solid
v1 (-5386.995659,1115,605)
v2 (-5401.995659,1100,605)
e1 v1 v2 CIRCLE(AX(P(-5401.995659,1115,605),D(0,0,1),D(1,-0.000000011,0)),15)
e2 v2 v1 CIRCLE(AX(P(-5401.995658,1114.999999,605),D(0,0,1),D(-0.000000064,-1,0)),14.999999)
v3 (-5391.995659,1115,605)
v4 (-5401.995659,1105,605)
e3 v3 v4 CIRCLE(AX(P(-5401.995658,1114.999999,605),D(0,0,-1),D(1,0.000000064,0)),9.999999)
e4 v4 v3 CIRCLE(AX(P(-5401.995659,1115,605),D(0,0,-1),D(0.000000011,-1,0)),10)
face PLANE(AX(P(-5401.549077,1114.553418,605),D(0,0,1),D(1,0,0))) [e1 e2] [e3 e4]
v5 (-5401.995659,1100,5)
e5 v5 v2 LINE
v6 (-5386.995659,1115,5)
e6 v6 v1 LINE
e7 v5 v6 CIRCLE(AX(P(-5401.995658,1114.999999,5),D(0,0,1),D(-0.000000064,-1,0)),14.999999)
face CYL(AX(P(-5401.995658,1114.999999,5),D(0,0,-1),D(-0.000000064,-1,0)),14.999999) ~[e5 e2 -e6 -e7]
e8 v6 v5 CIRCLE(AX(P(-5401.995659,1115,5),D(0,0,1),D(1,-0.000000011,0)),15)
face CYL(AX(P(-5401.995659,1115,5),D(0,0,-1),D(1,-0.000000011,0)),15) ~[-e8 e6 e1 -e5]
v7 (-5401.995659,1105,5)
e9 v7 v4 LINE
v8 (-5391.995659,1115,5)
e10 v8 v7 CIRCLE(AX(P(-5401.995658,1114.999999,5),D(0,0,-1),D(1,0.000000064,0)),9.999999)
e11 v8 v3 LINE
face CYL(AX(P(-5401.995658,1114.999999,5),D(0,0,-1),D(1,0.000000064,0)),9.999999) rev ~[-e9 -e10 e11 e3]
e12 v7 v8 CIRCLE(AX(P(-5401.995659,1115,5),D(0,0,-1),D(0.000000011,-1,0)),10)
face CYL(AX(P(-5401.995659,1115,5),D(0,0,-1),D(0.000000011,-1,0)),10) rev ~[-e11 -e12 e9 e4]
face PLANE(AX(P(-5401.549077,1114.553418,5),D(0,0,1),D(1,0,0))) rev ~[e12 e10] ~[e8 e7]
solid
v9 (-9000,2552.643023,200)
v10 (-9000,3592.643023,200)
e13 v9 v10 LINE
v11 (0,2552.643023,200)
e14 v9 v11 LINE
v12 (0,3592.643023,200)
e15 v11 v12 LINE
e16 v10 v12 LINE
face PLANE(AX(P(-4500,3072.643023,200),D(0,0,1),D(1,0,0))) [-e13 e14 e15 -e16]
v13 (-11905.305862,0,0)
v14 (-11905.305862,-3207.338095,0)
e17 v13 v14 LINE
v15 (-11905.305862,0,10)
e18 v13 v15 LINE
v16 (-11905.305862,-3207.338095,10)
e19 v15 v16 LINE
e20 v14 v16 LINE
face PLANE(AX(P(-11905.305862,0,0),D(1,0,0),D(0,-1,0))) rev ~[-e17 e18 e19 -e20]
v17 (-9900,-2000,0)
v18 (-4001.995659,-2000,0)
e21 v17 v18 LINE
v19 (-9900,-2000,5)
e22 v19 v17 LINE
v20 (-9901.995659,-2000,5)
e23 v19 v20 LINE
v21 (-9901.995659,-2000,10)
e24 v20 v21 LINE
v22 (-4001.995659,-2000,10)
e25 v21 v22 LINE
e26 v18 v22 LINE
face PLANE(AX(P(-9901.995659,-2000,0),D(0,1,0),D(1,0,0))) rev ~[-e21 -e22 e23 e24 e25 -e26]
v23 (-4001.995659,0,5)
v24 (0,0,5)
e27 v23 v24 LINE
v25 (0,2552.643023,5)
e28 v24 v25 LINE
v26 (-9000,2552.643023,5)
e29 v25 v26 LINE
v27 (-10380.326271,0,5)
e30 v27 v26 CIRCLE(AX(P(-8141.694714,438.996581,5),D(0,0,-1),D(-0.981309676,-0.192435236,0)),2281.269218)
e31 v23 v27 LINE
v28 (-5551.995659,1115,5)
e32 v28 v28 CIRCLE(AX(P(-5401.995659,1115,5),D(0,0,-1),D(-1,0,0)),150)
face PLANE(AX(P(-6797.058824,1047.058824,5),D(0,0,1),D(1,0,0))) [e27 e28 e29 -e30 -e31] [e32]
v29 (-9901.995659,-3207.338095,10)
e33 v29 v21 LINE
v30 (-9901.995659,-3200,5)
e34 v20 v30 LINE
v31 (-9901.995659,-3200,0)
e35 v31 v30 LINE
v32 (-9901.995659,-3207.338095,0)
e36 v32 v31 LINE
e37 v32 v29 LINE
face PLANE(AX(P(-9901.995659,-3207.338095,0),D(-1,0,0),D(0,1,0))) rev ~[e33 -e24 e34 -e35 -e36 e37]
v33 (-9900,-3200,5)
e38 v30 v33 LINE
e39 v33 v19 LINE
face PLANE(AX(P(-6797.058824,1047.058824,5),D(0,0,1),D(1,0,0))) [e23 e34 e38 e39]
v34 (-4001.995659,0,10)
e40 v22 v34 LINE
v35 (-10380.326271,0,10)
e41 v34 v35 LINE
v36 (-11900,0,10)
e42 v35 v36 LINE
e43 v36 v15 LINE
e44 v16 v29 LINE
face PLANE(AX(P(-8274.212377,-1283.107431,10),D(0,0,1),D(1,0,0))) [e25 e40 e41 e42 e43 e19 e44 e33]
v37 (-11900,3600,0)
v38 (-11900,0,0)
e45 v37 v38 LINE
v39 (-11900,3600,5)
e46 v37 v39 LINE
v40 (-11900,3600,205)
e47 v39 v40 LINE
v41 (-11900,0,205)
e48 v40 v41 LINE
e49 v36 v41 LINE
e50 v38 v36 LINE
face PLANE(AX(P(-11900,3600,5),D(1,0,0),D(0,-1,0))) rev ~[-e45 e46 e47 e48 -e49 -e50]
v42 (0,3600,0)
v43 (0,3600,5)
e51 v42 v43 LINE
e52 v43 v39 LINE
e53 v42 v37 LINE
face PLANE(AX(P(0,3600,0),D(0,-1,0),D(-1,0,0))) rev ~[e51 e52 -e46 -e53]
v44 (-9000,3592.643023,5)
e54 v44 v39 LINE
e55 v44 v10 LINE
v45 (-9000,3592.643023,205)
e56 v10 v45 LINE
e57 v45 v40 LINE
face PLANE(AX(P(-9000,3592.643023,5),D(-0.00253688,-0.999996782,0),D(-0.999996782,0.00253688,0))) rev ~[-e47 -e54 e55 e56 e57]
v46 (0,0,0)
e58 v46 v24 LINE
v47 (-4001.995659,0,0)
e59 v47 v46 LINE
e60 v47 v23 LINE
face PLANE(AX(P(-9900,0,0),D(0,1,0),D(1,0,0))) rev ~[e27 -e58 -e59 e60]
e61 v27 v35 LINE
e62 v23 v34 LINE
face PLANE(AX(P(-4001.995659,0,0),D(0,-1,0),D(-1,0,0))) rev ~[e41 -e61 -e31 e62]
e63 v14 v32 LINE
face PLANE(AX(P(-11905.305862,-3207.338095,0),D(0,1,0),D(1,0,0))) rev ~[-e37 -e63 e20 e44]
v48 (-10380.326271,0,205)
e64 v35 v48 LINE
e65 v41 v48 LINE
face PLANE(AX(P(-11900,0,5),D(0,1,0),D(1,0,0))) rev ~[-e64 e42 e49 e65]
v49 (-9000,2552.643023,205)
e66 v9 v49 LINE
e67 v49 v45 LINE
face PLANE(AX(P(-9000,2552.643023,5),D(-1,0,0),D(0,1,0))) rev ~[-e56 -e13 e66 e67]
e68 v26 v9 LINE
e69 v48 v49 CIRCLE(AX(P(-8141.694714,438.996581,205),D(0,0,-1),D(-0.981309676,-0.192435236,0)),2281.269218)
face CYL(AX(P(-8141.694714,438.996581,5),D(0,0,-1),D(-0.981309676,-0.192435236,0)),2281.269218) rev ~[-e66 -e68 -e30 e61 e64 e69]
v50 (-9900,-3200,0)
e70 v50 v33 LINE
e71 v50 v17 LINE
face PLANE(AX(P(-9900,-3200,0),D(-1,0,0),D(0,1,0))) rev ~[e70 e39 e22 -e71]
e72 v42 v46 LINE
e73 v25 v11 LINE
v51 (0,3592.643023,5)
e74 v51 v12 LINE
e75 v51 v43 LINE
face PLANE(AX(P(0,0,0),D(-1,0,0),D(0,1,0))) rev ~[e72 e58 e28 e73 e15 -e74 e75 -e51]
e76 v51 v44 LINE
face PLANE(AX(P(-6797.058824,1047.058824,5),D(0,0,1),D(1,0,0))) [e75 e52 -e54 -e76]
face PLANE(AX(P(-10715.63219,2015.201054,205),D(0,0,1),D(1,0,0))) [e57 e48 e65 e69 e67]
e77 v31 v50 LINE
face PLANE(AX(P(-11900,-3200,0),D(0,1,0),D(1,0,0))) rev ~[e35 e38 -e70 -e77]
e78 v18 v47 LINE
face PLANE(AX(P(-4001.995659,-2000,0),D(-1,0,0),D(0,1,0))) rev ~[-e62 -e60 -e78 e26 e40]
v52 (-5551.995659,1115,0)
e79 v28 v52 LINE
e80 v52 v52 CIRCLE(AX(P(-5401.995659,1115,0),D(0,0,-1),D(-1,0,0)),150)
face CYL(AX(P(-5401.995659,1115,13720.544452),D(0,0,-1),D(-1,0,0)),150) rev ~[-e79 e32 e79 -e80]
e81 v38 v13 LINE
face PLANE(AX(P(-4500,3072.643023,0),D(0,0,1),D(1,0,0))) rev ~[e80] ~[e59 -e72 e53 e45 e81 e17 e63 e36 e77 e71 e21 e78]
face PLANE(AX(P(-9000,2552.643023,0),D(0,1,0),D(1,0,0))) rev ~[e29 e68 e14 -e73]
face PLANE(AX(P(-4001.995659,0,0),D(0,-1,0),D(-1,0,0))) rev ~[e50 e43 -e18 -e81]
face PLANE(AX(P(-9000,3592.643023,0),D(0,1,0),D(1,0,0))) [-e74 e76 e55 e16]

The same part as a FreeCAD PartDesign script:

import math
import FreeCAD as App
import Part
import Sketcher
from FreeCAD import Vector

doc = App.newDocument("Part")
body = doc.addObject("PartDesign::Body", "Body")

sketch1 = body.newObject("Sketcher::SketchObject", "Sketch")
sketch1.AttachmentSupport = (doc.getObject("XY_Plane"), [""])
sketch1.MapMode = "FlatFace"
sketch1.addGeometry(Part.LineSegment(Vector(0, 0, 0), Vector(0, 3600, 0)), False)
sketch1.addGeometry(Part.LineSegment(Vector(0, 3600, 0), Vector(-11900, 3600, 0)), False)
sketch1.addGeometry(Part.LineSegment(Vector(-11900, 3600, 0), Vector(-11900, -3200, 0)), False)
sketch1.addGeometry(Part.LineSegment(Vector(-11900, -3200, 0), Vector(-9900, -3200, 0)), False)
sketch1.addGeometry(Part.LineSegment(Vector(-9900, -3200, 0), Vector(-9900, 0, 0)), False)
sketch1.addGeometry(Part.LineSegment(Vector(-9900, 0, 0), Vector(0, 0, 0)), False)
sketch1.addConstraint(Sketcher.Constraint("Coincident", 0, 2, 1, 1))
sketch1.addConstraint(Sketcher.Constraint("Coincident", 1, 2, 2, 1))
sketch1.addConstraint(Sketcher.Constraint("Coincident", 2, 2, 3, 1))
sketch1.addConstraint(Sketcher.Constraint("Coincident", 3, 2, 4, 1))
sketch1.addConstraint(Sketcher.Constraint("Coincident", 4, 2, 5, 1))
sketch1.addConstraint(Sketcher.Constraint("Coincident", 5, 2, 0, 1))
sketch1.addConstraint(Sketcher.Constraint("Vertical", 0))
sketch1.addConstraint(Sketcher.Constraint("Horizontal", 1))
sketch1.addConstraint(Sketcher.Constraint("Vertical", 2))
sketch1.addConstraint(Sketcher.Constraint("Horizontal", 3))
sketch1.addConstraint(Sketcher.Constraint("Vertical", 4))
sketch1.addConstraint(Sketcher.Constraint("Horizontal", 5))
sketch1.addConstraint(Sketcher.Constraint("Coincident", 5, 2, -1, 1))
sketch1.addConstraint(Sketcher.Constraint("DistanceX", 1, 2, 1, 1, 11900.0))
sketch1.addConstraint(Sketcher.Constraint("DistanceX", 3, 1, 3, 2, 2000.0))
sketch1.addConstraint(Sketcher.Constraint("DistanceY", 0, 1, 0, 2, 3600.0))
sketch1.addConstraint(Sketcher.Constraint("DistanceY", 2, 2, 2, 1, 6800.0))
pad1 = body.newObject("PartDesign::Pad", "Pad")
pad1.Profile = sketch1
pad1.Length = 5

sketch2 = body.newObject("Sketcher::SketchObject", "Sketch001")
sketch2.AttachmentSupport = (doc.getObject("XY_Plane"), [""])
sketch2.MapMode = "FlatFace"
sketch2.addGeometry(Part.LineSegment(Vector(-4001.995659, 0, 0), Vector(-11905.305862, 0, 0)), False)
sketch2.addGeometry(Part.LineSegment(Vector(-11905.305862, 0, 0), Vector(-11905.305862, -3207.338095, 0)), False)
sketch2.addGeometry(Part.LineSegment(Vector(-11905.305862, -3207.338095, 0), Vector(-9901.995659, -3207.338095, 0)), False)
sketch2.addGeometry(Part.LineSegment(Vector(-9901.995659, -3207.338095, 0), Vector(-9901.995659, -2000, 0)), False)
sketch2.addGeometry(Part.LineSegment(Vector(-9901.995659, -2000, 0), Vector(-4001.995659, -2000, 0)), False)
sketch2.addGeometry(Part.LineSegment(Vector(-4001.995659, -2000, 0), Vector(-4001.995659, 0, 0)), False)
sketch2.addConstraint(Sketcher.Constraint("Coincident", 0, 2, 1, 1))
sketch2.addConstraint(Sketcher.Constraint("Coincident", 1, 2, 2, 1))
sketch2.addConstraint(Sketcher.Constraint("Coincident", 2, 2, 3, 1))
sketch2.addConstraint(Sketcher.Constraint("Coincident", 3, 2, 4, 1))
sketch2.addConstraint(Sketcher.Constraint("Coincident", 4, 2, 5, 1))
sketch2.addConstraint(Sketcher.Constraint("Coincident", 5, 2, 0, 1))
sketch2.addConstraint(Sketcher.Constraint("Horizontal", 0))
sketch2.addConstraint(Sketcher.Constraint("Vertical", 1))
sketch2.addConstraint(Sketcher.Constraint("Horizontal", 2))
sketch2.addConstraint(Sketcher.Constraint("Vertical", 3))
sketch2.addConstraint(Sketcher.Constraint("Horizontal", 4))
sketch2.addConstraint(Sketcher.Constraint("Vertical", 5))
sketch2.addConstraint(Sketcher.Constraint("PointOnObject", 0, 2, -1))
sketch2.addConstraint(Sketcher.Constraint("DistanceX", 4, 1, 4, 2, 5900.0))
sketch2.addConstraint(Sketcher.Constraint("DistanceY", 5, 1, 5, 2, 2000.0))
sketch2.addConstraint(Sketcher.Constraint("DistanceX", 0, 2, 0, 1, 7903.310203))
sketch2.addConstraint(Sketcher.Constraint("DistanceY", 1, 2, 1, 1, 3207.338095))
sketch2.addConstraint(Sketcher.Constraint("DistanceX", 0, 2, -1, 1, 11905.305862))
pad2 = body.newObject("PartDesign::Pad", "Pad001")
pad2.Profile = sketch2
pad2.Length = 10

sketch3 = body.newObject("Sketcher::SketchObject", "Sketch002")
sketch3.AttachmentSupport = (doc.getObject("XY_Plane"), [""])
sketch3.MapMode = "FlatFace"
sketch3.addGeometry(Part.LineSegment(Vector(-9000, 3593, 0), Vector(-9000, 2553, 0)), False)
sketch3.addGeometry(Part.LineSegment(Vector(-9000, 2553, 0), Vector(0, 2553, 0)), False)
sketch3.addGeometry(Part.LineSegment(Vector(0, 2553, 0), Vector(0, 3593, 0)), False)
sketch3.addGeometry(Part.LineSegment(Vector(0, 3593, 0), Vector(-9000, 3593, 0)), False)
sketch3.addConstraint(Sketcher.Constraint("Coincident", 0, 2, 1, 1))
sketch3.addConstraint(Sketcher.Constraint("Coincident", 1, 2, 2, 1))
sketch3.addConstraint(Sketcher.Constraint("Coincident", 2, 2, 3, 1))
sketch3.addConstraint(Sketcher.Constraint("Coincident", 3, 2, 0, 1))
sketch3.addConstraint(Sketcher.Constraint("Vertical", 0))
sketch3.addConstraint(Sketcher.Constraint("Horizontal", 1))
sketch3.addConstraint(Sketcher.Constraint("Vertical", 2))
sketch3.addConstraint(Sketcher.Constraint("Horizontal", 3))
sketch3.addConstraint(Sketcher.Constraint("PointOnObject", 1, 2, -2))
sketch3.addConstraint(Sketcher.Constraint("DistanceX", 1, 1, 1, 2, 9000.0))
sketch3.addConstraint(Sketcher.Constraint("DistanceY", 0, 2, 0, 1, 1040.0))
sketch3.addConstraint(Sketcher.Constraint("DistanceY", -1, 1, 0, 2, 2552.643023))
pad3 = body.newObject("PartDesign::Pad", "Pad002")
pad3.Profile = sketch3
pad3.Length = 200

sketch4 = body.newObject("Sketcher::SketchObject", "Sketch003")
sketch4.AttachmentSupport = (doc.getObject("XY_Plane"), [""])
sketch4.MapMode = "FlatFace"
sketch4.AttachmentOffset = App.Placement(Vector(0, 0, 5), App.Rotation())
sketch4.addGeometry(Part.Circle(Vector(-5401.995659, 1115, 0), Vector(0, 0, 1), 150), False)
sketch4.addConstraint(Sketcher.Constraint("Diameter", 0, 300.0))
sketch4.addConstraint(Sketcher.Constraint("DistanceY", -1, 1, 0, 3, 1115.0))
sketch4.addConstraint(Sketcher.Constraint("DistanceX", 0, 3, -1, 1, 5401.995659))
doc.recompute()
hole = body.newObject("PartDesign::Hole", "Hole")
hole.Profile = sketch4
hole.ThreadType = "None"
hole.Diameter = 300
hole.DepthType = "ThroughAll"

sketch5 = body.newObject("Sketcher::SketchObject", "Sketch004")
sketch5.AttachmentSupport = (doc.getObject("XY_Plane"), [""])
sketch5.MapMode = "FlatFace"
sketch5.AttachmentOffset = App.Placement(Vector(0, 0, 5), App.Rotation())
sketch5.addGeometry(Part.ArcOfCircle(Part.Circle(Vector(-8142, 439, 0), Vector(0, 0, 1), 2281), math.radians(112), math.radians(191)), False)
sketch5.addGeometry(Part.LineSegment(Vector(-9000, 2553, 0), Vector(-9000, 3593, 0)), False)
sketch5.addGeometry(Part.LineSegment(Vector(-9000, 3593, 0), Vector(-11900, 3600, 0)), False)
sketch5.addGeometry(Part.LineSegment(Vector(-11900, 3600, 0), Vector(-11900, 0, 0)), False)
sketch5.addGeometry(Part.LineSegment(Vector(-11900, 0, 0), Vector(-10380, 0, 0)), False)
sketch5.addConstraint(Sketcher.Constraint("Coincident", 0, 1, 1, 1))
sketch5.addConstraint(Sketcher.Constraint("Coincident", 1, 2, 2, 1))
sketch5.addConstraint(Sketcher.Constraint("Coincident", 2, 2, 3, 1))
sketch5.addConstraint(Sketcher.Constraint("Coincident", 3, 2, 4, 1))
sketch5.addConstraint(Sketcher.Constraint("Coincident", 4, 2, 0, 2))
sketch5.addConstraint(Sketcher.Constraint("Vertical", 1))
sketch5.addConstraint(Sketcher.Constraint("Vertical", 3))
sketch5.addConstraint(Sketcher.Constraint("Horizontal", 4))
sketch5.addConstraint(Sketcher.Constraint("PointOnObject", 3, 2, -1))
sketch5.addConstraint(Sketcher.Constraint("DistanceY", 1, 1, 1, 2, 1040.0))
sketch5.addConstraint(Sketcher.Constraint("DistanceY", 3, 2, 3, 1, 3600.0))
sketch5.addConstraint(Sketcher.Constraint("DistanceX", 1, 2, -1, 1, 9000.0))
sketch5.addConstraint(Sketcher.Constraint("DistanceX", 2, 2, -1, 1, 11900.0))
sketch5.addConstraint(Sketcher.Constraint("Radius", 0, 2281.269218))
sketch5.addConstraint(Sketcher.Constraint("DistanceX", 4, 1, 4, 2, 1519.673729))
sketch5.addConstraint(Sketcher.Constraint("DistanceY", -1, 1, 0, 3, 438.996581))
pad4 = body.newObject("PartDesign::Pad", "Pad003")
pad4.Profile = sketch5
pad4.Length = 200
body2 = doc.addObject("PartDesign::Body", "Body001")

sketch6 = body2.newObject("Sketcher::SketchObject", "Sketch005")
sketch6.AttachmentSupport = (doc.getObject("XY_Plane001"), [""])
sketch6.MapMode = "FlatFace"
sketch6.AttachmentOffset = App.Placement(Vector(0, 0, 5), App.Rotation())
sketch6.addGeometry(Part.ArcOfCircle(Part.Circle(Vector(-5402, 1115, 0), Vector(0, 0, 1), 15), math.radians(0), math.radians(270)), False)
sketch6.addGeometry(Part.ArcOfCircle(Part.Circle(Vector(-5402, 1115, 0), Vector(0, 0, 1), 15), math.radians(-90), math.radians(0)), False)
sketch6.addGeometry(Part.ArcOfCircle(Part.Circle(Vector(-5402, 1115, 0), Vector(0, 0, 1), 10), math.radians(0), math.radians(270)), False)
sketch6.addGeometry(Part.ArcOfCircle(Part.Circle(Vector(-5402, 1115, 0), Vector(0, 0, 1), 10), math.radians(-90), math.radians(0)), False)
sketch6.addConstraint(Sketcher.Constraint("Tangent", 0, 1, 1, 2))
sketch6.addConstraint(Sketcher.Constraint("Coincident", 1, 1, 0, 2))
sketch6.addConstraint(Sketcher.Constraint("Tangent", 2, 1, 3, 2))
sketch6.addConstraint(Sketcher.Constraint("Coincident", 3, 1, 2, 2))
sketch6.addConstraint(Sketcher.Constraint("Coincident", 2, 3, 0, 3))
sketch6.addConstraint(Sketcher.Constraint("Horizontal", 3, 3, 0, 1))
sketch6.addConstraint(Sketcher.Constraint("Horizontal", 0, 1, 2, 1))
sketch6.addConstraint(Sketcher.Constraint("Vertical", 3, 3, 1, 1))
sketch6.addConstraint(Sketcher.Constraint("Vertical", 1, 1, 3, 1))
sketch6.addConstraint(Sketcher.Constraint("Radius", 0, 15.0))
sketch6.addConstraint(Sketcher.Constraint("Radius", 2, 10.0))
sketch6.addConstraint(Sketcher.Constraint("DistanceY", -1, 1, 0, 3, 1115.0))
sketch6.addConstraint(Sketcher.Constraint("DistanceX", 0, 3, -1, 1, 5401.995659))
pad5 = body2.newObject("PartDesign::Pad", "Pad004")
pad5.Profile = sketch6
pad5.Length = 600

doc.recompute()
